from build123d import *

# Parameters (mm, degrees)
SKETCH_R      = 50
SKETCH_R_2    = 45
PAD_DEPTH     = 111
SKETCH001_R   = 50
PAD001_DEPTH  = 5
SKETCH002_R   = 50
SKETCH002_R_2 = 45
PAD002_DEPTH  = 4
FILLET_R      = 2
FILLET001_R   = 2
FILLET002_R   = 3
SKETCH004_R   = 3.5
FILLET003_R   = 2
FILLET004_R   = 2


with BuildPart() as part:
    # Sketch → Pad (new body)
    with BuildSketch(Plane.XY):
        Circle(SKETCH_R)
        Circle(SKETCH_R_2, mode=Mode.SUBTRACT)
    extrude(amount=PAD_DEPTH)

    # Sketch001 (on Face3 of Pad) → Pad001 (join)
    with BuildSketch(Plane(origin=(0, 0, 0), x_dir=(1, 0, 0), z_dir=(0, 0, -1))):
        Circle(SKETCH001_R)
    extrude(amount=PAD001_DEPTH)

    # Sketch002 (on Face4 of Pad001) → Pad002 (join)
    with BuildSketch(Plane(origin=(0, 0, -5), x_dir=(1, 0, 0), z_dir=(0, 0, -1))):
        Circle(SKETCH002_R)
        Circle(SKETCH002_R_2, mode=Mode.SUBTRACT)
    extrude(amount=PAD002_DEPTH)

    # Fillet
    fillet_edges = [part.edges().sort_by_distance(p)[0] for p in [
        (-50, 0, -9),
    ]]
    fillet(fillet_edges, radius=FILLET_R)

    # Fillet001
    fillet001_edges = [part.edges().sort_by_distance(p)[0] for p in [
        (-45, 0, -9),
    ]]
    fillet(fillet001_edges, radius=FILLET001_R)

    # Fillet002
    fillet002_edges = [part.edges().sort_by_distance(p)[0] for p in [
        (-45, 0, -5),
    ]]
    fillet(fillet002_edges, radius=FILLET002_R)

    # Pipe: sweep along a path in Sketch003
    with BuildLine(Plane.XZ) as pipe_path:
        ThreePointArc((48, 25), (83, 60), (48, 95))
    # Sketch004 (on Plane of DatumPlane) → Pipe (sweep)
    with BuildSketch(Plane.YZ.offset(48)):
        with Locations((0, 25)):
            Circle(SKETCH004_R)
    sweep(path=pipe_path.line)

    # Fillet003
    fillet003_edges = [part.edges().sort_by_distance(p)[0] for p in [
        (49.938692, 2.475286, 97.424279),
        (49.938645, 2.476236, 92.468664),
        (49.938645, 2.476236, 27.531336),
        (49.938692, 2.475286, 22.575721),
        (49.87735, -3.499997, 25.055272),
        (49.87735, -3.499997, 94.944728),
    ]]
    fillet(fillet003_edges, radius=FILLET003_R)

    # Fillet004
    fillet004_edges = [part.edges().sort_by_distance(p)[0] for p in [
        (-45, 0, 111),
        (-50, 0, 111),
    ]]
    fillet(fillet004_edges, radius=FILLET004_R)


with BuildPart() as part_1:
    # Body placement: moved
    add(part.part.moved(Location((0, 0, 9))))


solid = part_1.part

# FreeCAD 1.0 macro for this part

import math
import FreeCAD as App
import Part
import Sketcher
from FreeCAD import Vector
Q = App.Units.Quantity


def edges_at(feature, points):
    """Names of the edges that pass closest to the given points."""
    edges = feature.Shape.Edges
    near = lambda p: min(range(len(edges)), key=lambda i: edges[i].distToShape(Part.Vertex(*p))[0])
    return sorted({f"Edge{near(p) + 1}" for p in points})

doc = App.newDocument("Part")
body = doc.addObject("PartDesign::Body", "Body")

# Sketch on XY plane
sketch1 = body.newObject("Sketcher::SketchObject", "Sketch")
sketch1.AttachmentSupport = (doc.getObject("XY_Plane"), [""])
sketch1.MapMode = "FlatFace"
sketch1.addGeometry([
    Part.Circle(Vector(0, 0, 0), Vector(0, 0, 1), 50),
    Part.Circle(Vector(0, 0, 0), Vector(0, 0, 1), 45),
], False)
sketch1.addConstraint([
    Sketcher.Constraint("Coincident", 0, 3, -1, 1),
    Sketcher.Constraint("Coincident", 1, 3, -1, 1),
    Sketcher.Constraint("Diameter", 0, Q("100 mm")),
    Sketcher.Constraint("Diameter", 1, Q("90 mm")),
])
pad1 = body.newObject("PartDesign::Pad", "Pad")
pad1.Profile = sketch1
pad1.Length = 111

# Sketch on XY plane
sketch2 = body.newObject("Sketcher::SketchObject", "Sketch001")
sketch2.AttachmentSupport = (doc.getObject("XY_Plane"), [""])
sketch2.MapMode = "FlatFace"
sketch2.addGeometry(Part.Circle(Vector(0, 0, 0), Vector(0, 0, 1), 50), False)
sketch2.addConstraint([
    Sketcher.Constraint("Coincident", 0, 3, -1, 1),
    Sketcher.Constraint("Diameter", 0, Q("100 mm")),
])
pad2 = body.newObject("PartDesign::Pad", "Pad001")
pad2.Profile = sketch2
pad2.Length = 5
pad2.Reversed = True

# Sketch on XY plane
sketch3 = body.newObject("Sketcher::SketchObject", "Sketch002")
sketch3.AttachmentSupport = (doc.getObject("XY_Plane"), [""])
sketch3.MapMode = "FlatFace"
sketch3.AttachmentOffset = App.Placement(Vector(0, 0, -5), App.Rotation())
sketch3.addGeometry([
    Part.Circle(Vector(0, 0, 0), Vector(0, 0, 1), 50),
    Part.Circle(Vector(0, 0, 0), Vector(0, 0, 1), 45),
], False)
sketch3.addConstraint([
    Sketcher.Constraint("Coincident", 0, 3, -1, 1),
    Sketcher.Constraint("Coincident", 1, 3, -1, 1),
    Sketcher.Constraint("Diameter", 0, Q("100 mm")),
    Sketcher.Constraint("Diameter", 1, Q("90 mm")),
])
pad3 = body.newObject("PartDesign::Pad", "Pad002")
pad3.Profile = sketch3
pad3.Length = 4
pad3.Reversed = True
doc.recompute()

fillet = body.newObject("PartDesign::Fillet", "Fillet")
fillet.Base = (pad3, edges_at(pad3, [(-50, 0, -9)]))
fillet.Radius = 2
doc.recompute()

fillet2 = body.newObject("PartDesign::Fillet", "Fillet001")
fillet2.Base = (fillet, edges_at(fillet, [(-45, 0, -9)]))
fillet2.Radius = 2
doc.recompute()

fillet3 = body.newObject("PartDesign::Fillet", "Fillet002")
fillet3.Base = (fillet2, edges_at(fillet2, [(-45, 0, -5)]))
fillet3.Radius = 3

# Sketch on YZ plane
sketch4 = body.newObject("Sketcher::SketchObject", "Sketch003")
sketch4.AttachmentSupport = (doc.getObject("YZ_Plane"), [""])
sketch4.MapMode = "FlatFace"
sketch4.AttachmentOffset = App.Placement(Vector(0, 0, 48), App.Rotation())
sketch4.addGeometry(Part.Circle(Vector(0, 25, 0), Vector(0, 0, 1), 3.5), False)
sketch4.addConstraint([
    Sketcher.Constraint("PointOnObject", 0, 3, -2),
    Sketcher.Constraint("Diameter", 0, Q("7 mm")),
    Sketcher.Constraint("DistanceY", -1, 1, 0, 3, Q("25 mm")),
])

# Sketch on XZ plane
sketch5 = body.newObject("Sketcher::SketchObject", "Sketch004")
sketch5.AttachmentSupport = (doc.getObject("XZ_Plane"), [""])
sketch5.MapMode = "FlatFace"
sketch5.addGeometry(Part.ArcOfCircle(Part.Circle(Vector(48, 60, 0), Vector(0, 0, 1), 35), math.radians(-90), math.radians(90)), False)
sketch5.addConstraint([
    Sketcher.Constraint("Radius", 0, Q("35 mm")),
    Sketcher.Constraint("DistanceX", -1, 1, 0, 3, Q("48 mm")),
    Sketcher.Constraint("DistanceY", -1, 1, 0, 3, Q("60 mm")),
    Sketcher.Constraint("DistanceX", -1, 1, 0, 1, Q("48 mm")),
    Sketcher.Constraint("DistanceX", -1, 1, 0, 2, Q("48 mm")),
])
doc.recompute()

additivepipe = body.newObject("PartDesign::AdditivePipe", "AdditivePipe")
additivepipe.Profile = sketch4
additivepipe.Spine = (sketch5, ["Edge1"])
doc.recompute()

fillet4 = body.newObject("PartDesign::Fillet", "Fillet003")
fillet4.Base = (additivepipe, edges_at(additivepipe, [
    (49.939, 2.475, 97.424),
    (49.939, 2.476, 92.469),
    (49.939, 2.476, 27.531),
    (49.939, 2.475, 22.576),
    (49.877, -3.5, 25.055),
    (49.877, -3.5, 94.945),
]))
fillet4.Radius = 2
doc.recompute()

fillet5 = body.newObject("PartDesign::Fillet", "Fillet004")
fillet5.Base = (fillet4, edges_at(fillet4, [(-45, 0, 111), (-50, 0, 111)]))
fillet5.Radius = 2
body2 = doc.addObject("PartDesign::Body", "Body001")
doc.recompute()

body.Placement = App.Placement(Vector(0, 0, 9), App.Rotation(Vector(0, 0, 1), 0))
boolean = body2.newObject("PartDesign::Boolean", "Boolean")
boolean.Type = "Fuse"
boolean.addObjects([body])

doc.recompute()
